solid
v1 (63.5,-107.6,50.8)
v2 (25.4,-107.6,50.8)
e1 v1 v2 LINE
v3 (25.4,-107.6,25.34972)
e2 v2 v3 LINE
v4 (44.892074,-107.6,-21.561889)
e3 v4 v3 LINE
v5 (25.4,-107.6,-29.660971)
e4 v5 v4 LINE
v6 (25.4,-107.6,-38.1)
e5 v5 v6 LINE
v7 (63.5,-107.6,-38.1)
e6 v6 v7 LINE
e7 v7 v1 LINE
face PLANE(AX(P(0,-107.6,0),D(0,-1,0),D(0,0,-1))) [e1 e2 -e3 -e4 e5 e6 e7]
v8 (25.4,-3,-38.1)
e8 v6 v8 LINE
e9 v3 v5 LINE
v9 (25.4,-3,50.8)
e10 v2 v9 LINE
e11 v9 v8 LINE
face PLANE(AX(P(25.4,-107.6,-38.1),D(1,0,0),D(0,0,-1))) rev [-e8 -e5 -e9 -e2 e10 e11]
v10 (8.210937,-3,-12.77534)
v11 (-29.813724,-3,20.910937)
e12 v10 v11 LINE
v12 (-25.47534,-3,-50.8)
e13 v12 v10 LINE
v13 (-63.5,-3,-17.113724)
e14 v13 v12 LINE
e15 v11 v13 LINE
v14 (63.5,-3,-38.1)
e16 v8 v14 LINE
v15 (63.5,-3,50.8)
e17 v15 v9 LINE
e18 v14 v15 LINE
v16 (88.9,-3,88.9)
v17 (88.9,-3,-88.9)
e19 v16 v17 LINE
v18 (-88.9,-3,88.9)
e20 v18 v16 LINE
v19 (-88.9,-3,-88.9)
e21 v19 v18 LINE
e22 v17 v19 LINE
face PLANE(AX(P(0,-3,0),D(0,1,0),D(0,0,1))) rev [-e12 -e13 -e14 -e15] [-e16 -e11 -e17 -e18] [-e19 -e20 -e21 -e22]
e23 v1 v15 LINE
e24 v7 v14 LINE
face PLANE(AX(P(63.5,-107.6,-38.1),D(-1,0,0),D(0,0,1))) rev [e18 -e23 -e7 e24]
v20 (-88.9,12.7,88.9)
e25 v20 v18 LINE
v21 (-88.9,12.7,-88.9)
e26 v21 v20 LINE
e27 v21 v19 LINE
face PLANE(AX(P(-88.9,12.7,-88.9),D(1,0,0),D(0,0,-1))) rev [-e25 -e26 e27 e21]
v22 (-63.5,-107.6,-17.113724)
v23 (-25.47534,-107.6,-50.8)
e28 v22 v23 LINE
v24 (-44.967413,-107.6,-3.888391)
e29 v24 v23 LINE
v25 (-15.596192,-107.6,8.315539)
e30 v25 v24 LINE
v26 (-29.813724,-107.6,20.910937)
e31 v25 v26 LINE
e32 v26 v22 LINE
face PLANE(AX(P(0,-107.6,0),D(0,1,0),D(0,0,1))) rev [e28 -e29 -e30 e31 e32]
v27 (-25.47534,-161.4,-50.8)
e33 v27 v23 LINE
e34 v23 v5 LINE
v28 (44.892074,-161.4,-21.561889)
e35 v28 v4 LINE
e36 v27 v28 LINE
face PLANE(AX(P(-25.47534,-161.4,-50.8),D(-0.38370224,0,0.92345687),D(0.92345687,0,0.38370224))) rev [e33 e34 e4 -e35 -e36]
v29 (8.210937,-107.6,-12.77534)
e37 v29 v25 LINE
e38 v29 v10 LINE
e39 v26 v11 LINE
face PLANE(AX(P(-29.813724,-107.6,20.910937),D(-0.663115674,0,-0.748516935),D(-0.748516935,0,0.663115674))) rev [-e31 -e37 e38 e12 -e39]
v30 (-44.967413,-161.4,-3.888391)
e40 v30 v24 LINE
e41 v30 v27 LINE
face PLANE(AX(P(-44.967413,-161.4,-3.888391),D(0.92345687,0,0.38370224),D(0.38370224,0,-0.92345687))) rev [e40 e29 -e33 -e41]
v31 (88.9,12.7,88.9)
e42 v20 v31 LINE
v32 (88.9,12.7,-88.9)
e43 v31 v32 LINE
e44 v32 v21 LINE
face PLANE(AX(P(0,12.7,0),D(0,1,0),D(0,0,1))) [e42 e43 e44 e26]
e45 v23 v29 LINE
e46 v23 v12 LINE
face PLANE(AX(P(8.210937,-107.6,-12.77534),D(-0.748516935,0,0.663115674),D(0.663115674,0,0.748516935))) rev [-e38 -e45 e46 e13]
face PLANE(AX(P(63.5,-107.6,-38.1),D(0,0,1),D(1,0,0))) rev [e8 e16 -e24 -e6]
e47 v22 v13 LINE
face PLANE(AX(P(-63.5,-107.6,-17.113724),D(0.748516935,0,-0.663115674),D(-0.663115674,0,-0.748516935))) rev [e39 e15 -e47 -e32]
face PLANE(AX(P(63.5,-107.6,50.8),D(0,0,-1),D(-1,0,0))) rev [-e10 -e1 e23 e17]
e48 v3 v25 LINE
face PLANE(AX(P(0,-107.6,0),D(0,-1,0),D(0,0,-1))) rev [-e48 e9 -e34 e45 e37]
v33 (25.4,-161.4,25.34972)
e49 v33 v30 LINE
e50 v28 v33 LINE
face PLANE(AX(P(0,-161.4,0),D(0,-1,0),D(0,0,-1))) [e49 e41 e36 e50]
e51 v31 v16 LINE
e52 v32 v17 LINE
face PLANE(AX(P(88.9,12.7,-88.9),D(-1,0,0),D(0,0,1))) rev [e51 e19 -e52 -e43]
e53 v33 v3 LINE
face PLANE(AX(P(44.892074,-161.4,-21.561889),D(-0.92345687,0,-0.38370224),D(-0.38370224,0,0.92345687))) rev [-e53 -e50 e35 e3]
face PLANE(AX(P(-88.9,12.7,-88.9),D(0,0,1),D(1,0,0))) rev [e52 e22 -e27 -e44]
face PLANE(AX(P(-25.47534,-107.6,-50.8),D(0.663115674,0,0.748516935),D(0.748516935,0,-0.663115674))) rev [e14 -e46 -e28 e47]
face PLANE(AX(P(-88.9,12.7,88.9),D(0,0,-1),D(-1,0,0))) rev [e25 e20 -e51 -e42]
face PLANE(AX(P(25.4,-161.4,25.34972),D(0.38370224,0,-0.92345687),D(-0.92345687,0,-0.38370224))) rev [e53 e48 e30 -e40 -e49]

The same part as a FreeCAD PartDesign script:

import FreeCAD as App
import Part
import Sketcher

V = App.Vector
Q = App.Units.Quantity

doc = App.newDocument("Part")
params = doc.addObject("Spreadsheet::Sheet", "Params")
for row, (alias, value) in enumerate([
    ("sketch1_width", "7 in"),
    ("pad1_length", "0.5 in"),
    ("sketch2_width", "7 in"),
    ("pad2_length", "3 mm"),
    ("sketch3_length", "2 in"),
    ("sketch3_width", "1.5 in"),
    ("sketch3_height", "3.5 in"),
    ("pad3_length", "104.6 mm"),
    ("sketch4_length", "3 in"),
    ("sketch4_length2", "2 in"),
    ("pad4_length", "53.8 mm"),
], start=1):
    params.set(f"A{row}", alias)
    params.set(f"B{row}", "=" + value)
    params.setAlias(f"B{row}", alias)

body = doc.addObject("PartDesign::Body", "Body")

sketch1 = body.newObject("Sketcher::SketchObject", "Sketch")
sketch1.AttachmentSupport = (doc.getObject("XZ_Plane"), [""])
sketch1.MapMode = "FlatFace"
sketch1.addGeometry(Part.LineSegment(V(-89, -89, 0), V(-89, 89, 0)), False)
sketch1.addGeometry(Part.LineSegment(V(-89, 89, 0), V(89, 89, 0)), False)
sketch1.addGeometry(Part.LineSegment(V(89, 89, 0), V(89, -89, 0)), False)
sketch1.addGeometry(Part.LineSegment(V(89, -89, 0), V(-89, -89, 0)), False)
sketch1.addConstraint(Sketcher.Constraint("Coincident", 0, 2, 1, 1))
sketch1.addConstraint(Sketcher.Constraint("Coincident", 1, 2, 2, 1))
sketch1.addConstraint(Sketcher.Constraint("Coincident", 2, 2, 3, 1))
sketch1.addConstraint(Sketcher.Constraint("Coincident", 3, 2, 0, 1))
sketch1.addConstraint(Sketcher.Constraint("Vertical", 0))
sketch1.addConstraint(Sketcher.Constraint("Horizontal", 1))
sketch1.addConstraint(Sketcher.Constraint("Vertical", 2))
sketch1.addConstraint(Sketcher.Constraint("Horizontal", 3))
sketch1.addConstraint(Sketcher.Constraint("Symmetric", 0, 2, 2, 2, -1, 1))
sketch1.addConstraint(Sketcher.Constraint("Equal", 3, 0))
sketch1.addConstraint(Sketcher.Constraint("DistanceX", 1, 1, 1, 2, Q("7 in")))
sketch1.setExpression("Constraints[10]", "Params.sketch1_width")
pad1 = body.newObject("PartDesign::Pad", "Pad")
pad1.Profile = sketch1
pad1.setExpression("Length", "Params.pad1_length")
pad1.Reversed = True

sketch2 = body.newObject("Sketcher::SketchObject", "Sketch001")
sketch2.AttachmentSupport = (doc.getObject("XZ_Plane"), [""])
sketch2.MapMode = "FlatFace"
sketch2.addGeometry(Part.LineSegment(V(-89, -89, 0), V(-89, 89, 0)), False)
sketch2.addGeometry(Part.LineSegment(V(-89, 89, 0), V(89, 89, 0)), False)
sketch2.addGeometry(Part.LineSegment(V(89, 89, 0), V(89, -89, 0)), False)
sketch2.addGeometry(Part.LineSegment(V(89, -89, 0), V(-89, -89, 0)), False)
sketch2.addConstraint(Sketcher.Constraint("Coincident", 0, 2, 1, 1))
sketch2.addConstraint(Sketcher.Constraint("Coincident", 1, 2, 2, 1))
sketch2.addConstraint(Sketcher.Constraint("Coincident", 2, 2, 3, 1))
sketch2.addConstraint(Sketcher.Constraint("Coincident", 3, 2, 0, 1))
sketch2.addConstraint(Sketcher.Constraint("Vertical", 0))
sketch2.addConstraint(Sketcher.Constraint("Horizontal", 1))
sketch2.addConstraint(Sketcher.Constraint("Vertical", 2))
sketch2.addConstraint(Sketcher.Constraint("Horizontal", 3))
sketch2.addConstraint(Sketcher.Constraint("Symmetric", 0, 2, 2, 2, -1, 1))
sketch2.addConstraint(Sketcher.Constraint("Equal", 3, 0))
sketch2.addConstraint(Sketcher.Constraint("DistanceX", 1, 1, 1, 2, Q("7 in")))
sketch2.setExpression("Constraints[10]", "Params.sketch2_width")
pad2 = body.newObject("PartDesign::Pad", "Pad001")
pad2.Profile = sketch2
pad2.setExpression("Length", "Params.pad2_length")

sketch3 = body.newObject("Sketcher::SketchObject", "Sketch002")
sketch3.AttachmentSupport = (doc.getObject("XZ_Plane"), [""])
sketch3.MapMode = "FlatFace"
sketch3.AttachmentOffset = App.Placement(V(0, 0, 3), App.Rotation())
sketch3.addGeometry(Part.LineSegment(V(-64, -17, 0), V(-25, -51, 0)), False)
sketch3.addGeometry(Part.LineSegment(V(-25, -51, 0), V(8, -13, 0)), False)
sketch3.addGeometry(Part.LineSegment(V(8, -13, 0), V(-30, 21, 0)), False)
sketch3.addGeometry(Part.LineSegment(V(-30, 21, 0), V(-64, -17, 0)), False)
sketch3.addGeometry(Part.LineSegment(V(25, 51, 0), V(25, -38, 0)), False)
sketch3.addGeometry(Part.LineSegment(V(25, -38, 0), V(64, -38, 0)), False)
sketch3.addGeometry(Part.LineSegment(V(64, -38, 0), V(64, 51, 0)), False)
sketch3.addGeometry(Part.LineSegment(V(64, 51, 0), V(25, 51, 0)), False)
sketch3.addConstraint(Sketcher.Constraint("Coincident", 0, 2, 1, 1))
sketch3.addConstraint(Sketcher.Constraint("Coincident", 1, 2, 2, 1))
sketch3.addConstraint(Sketcher.Constraint("Coincident", 2, 2, 3, 1))
sketch3.addConstraint(Sketcher.Constraint("Coincident", 3, 2, 0, 1))
sketch3.addConstraint(Sketcher.Constraint("Coincident", 4, 2, 5, 1))
sketch3.addConstraint(Sketcher.Constraint("Coincident", 5, 2, 6, 1))
sketch3.addConstraint(Sketcher.Constraint("Coincident", 6, 2, 7, 1))
sketch3.addConstraint(Sketcher.Constraint("Coincident", 7, 2, 4, 1))
sketch3.addConstraint(Sketcher.Constraint("Vertical", 4))
sketch3.addConstraint(Sketcher.Constraint("Horizontal", 5))
sketch3.addConstraint(Sketcher.Constraint("Vertical", 6))
sketch3.addConstraint(Sketcher.Constraint("Horizontal", 7))
sketch3.addConstraint(Sketcher.Constraint("Perpendicular", 0, 1))
sketch3.addConstraint(Sketcher.Constraint("Perpendicular", 1, 2))
sketch3.addConstraint(Sketcher.Constraint("Perpendicular", 2, 3))
sketch3.addConstraint(Sketcher.Constraint("Equal", 0, 1))
sketch3.addConstraint(Sketcher.Constraint("Distance", 0, Q("2 in")))
sketch3.addConstraint(Sketcher.Constraint("DistanceX", 5, 1, 5, 2, Q("1.5 in")))
sketch3.addConstraint(Sketcher.Constraint("DistanceY", 4, 2, 4, 1, Q("3.5 in")))
sketch3.addConstraint(Sketcher.Constraint("DistanceY", 0, 2, -1, 1, Q("2 in")))
sketch3.addConstraint(Sketcher.Constraint("DistanceX", -1, 1, 4, 2, Q("1 in")))
sketch3.addConstraint(Sketcher.Constraint("DistanceY", -1, 1, 6, 2, Q("2 in")))
sketch3.addConstraint(Sketcher.Constraint("DistanceX", 3, 2, 5, 2, Q("5 in")))
sketch3.addConstraint(Sketcher.Constraint("DistanceX", 0, 2, -1, 1, 25.47534))
sketch3.setExpression("Constraints[16]", "Params.sketch3_length")
sketch3.setExpression("Constraints[17]", "Params.sketch3_width")
sketch3.setExpression("Constraints[18]", "Params.sketch3_height")
pad3 = body.newObject("PartDesign::Pad", "Pad002")
pad3.Profile = sketch3
pad3.setExpression("Length", "Params.pad3_length")

sketch4 = body.newObject("Sketcher::SketchObject", "Sketch003")
sketch4.AttachmentSupport = (doc.getObject("XZ_Plane"), [""])
sketch4.MapMode = "FlatFace"
sketch4.AttachmentOffset = App.Placement(V(0, 0, 107.6), App.Rotation())
sketch4.addGeometry(Part.LineSegment(V(-25, -51, 0), V(45, -22, 0)), False)
sketch4.addGeometry(Part.LineSegment(V(45, -22, 0), V(25, 25, 0)), False)
sketch4.addGeometry(Part.LineSegment(V(25, 25, 0), V(-45, -4, 0)), False)
sketch4.addGeometry(Part.LineSegment(V(-45, -4, 0), V(-25, -51, 0)), False)
sketch4.addConstraint(Sketcher.Constraint("Coincident", 0, 2, 1, 1))
sketch4.addConstraint(Sketcher.Constraint("Coincident", 1, 2, 2, 1))
sketch4.addConstraint(Sketcher.Constraint("Coincident", 2, 2, 3, 1))
sketch4.addConstraint(Sketcher.Constraint("Coincident", 3, 2, 0, 1))
sketch4.addConstraint(Sketcher.Constraint("Perpendicular", 0, 1))
sketch4.addConstraint(Sketcher.Constraint("Perpendicular", 1, 2))
sketch4.addConstraint(Sketcher.Constraint("Perpendicular", 2, 3))
sketch4.addConstraint(Sketcher.Constraint("Distance", 0, Q("3 in")))
sketch4.addConstraint(Sketcher.Constraint("Distance", 1, Q("2 in")))
sketch4.addConstraint(Sketcher.Constraint("DistanceX", -1, 1, 1, 2, Q("1 in")))
sketch4.addConstraint(Sketcher.Constraint("DistanceY", 3, 2, -1, 1, Q("2 in")))
sketch4.addConstraint(Sketcher.Constraint("DistanceY", 0, 2, 2, 2, 17.673498))
sketch4.setExpression("Constraints[7]", "Params.sketch4_length")
sketch4.setExpression("Constraints[8]", "Params.sketch4_length2")
pad4 = body.newObject("PartDesign::Pad", "Pad003")
pad4.Profile = sketch4
pad4.setExpression("Length", "Params.pad4_length")

doc.recompute()
